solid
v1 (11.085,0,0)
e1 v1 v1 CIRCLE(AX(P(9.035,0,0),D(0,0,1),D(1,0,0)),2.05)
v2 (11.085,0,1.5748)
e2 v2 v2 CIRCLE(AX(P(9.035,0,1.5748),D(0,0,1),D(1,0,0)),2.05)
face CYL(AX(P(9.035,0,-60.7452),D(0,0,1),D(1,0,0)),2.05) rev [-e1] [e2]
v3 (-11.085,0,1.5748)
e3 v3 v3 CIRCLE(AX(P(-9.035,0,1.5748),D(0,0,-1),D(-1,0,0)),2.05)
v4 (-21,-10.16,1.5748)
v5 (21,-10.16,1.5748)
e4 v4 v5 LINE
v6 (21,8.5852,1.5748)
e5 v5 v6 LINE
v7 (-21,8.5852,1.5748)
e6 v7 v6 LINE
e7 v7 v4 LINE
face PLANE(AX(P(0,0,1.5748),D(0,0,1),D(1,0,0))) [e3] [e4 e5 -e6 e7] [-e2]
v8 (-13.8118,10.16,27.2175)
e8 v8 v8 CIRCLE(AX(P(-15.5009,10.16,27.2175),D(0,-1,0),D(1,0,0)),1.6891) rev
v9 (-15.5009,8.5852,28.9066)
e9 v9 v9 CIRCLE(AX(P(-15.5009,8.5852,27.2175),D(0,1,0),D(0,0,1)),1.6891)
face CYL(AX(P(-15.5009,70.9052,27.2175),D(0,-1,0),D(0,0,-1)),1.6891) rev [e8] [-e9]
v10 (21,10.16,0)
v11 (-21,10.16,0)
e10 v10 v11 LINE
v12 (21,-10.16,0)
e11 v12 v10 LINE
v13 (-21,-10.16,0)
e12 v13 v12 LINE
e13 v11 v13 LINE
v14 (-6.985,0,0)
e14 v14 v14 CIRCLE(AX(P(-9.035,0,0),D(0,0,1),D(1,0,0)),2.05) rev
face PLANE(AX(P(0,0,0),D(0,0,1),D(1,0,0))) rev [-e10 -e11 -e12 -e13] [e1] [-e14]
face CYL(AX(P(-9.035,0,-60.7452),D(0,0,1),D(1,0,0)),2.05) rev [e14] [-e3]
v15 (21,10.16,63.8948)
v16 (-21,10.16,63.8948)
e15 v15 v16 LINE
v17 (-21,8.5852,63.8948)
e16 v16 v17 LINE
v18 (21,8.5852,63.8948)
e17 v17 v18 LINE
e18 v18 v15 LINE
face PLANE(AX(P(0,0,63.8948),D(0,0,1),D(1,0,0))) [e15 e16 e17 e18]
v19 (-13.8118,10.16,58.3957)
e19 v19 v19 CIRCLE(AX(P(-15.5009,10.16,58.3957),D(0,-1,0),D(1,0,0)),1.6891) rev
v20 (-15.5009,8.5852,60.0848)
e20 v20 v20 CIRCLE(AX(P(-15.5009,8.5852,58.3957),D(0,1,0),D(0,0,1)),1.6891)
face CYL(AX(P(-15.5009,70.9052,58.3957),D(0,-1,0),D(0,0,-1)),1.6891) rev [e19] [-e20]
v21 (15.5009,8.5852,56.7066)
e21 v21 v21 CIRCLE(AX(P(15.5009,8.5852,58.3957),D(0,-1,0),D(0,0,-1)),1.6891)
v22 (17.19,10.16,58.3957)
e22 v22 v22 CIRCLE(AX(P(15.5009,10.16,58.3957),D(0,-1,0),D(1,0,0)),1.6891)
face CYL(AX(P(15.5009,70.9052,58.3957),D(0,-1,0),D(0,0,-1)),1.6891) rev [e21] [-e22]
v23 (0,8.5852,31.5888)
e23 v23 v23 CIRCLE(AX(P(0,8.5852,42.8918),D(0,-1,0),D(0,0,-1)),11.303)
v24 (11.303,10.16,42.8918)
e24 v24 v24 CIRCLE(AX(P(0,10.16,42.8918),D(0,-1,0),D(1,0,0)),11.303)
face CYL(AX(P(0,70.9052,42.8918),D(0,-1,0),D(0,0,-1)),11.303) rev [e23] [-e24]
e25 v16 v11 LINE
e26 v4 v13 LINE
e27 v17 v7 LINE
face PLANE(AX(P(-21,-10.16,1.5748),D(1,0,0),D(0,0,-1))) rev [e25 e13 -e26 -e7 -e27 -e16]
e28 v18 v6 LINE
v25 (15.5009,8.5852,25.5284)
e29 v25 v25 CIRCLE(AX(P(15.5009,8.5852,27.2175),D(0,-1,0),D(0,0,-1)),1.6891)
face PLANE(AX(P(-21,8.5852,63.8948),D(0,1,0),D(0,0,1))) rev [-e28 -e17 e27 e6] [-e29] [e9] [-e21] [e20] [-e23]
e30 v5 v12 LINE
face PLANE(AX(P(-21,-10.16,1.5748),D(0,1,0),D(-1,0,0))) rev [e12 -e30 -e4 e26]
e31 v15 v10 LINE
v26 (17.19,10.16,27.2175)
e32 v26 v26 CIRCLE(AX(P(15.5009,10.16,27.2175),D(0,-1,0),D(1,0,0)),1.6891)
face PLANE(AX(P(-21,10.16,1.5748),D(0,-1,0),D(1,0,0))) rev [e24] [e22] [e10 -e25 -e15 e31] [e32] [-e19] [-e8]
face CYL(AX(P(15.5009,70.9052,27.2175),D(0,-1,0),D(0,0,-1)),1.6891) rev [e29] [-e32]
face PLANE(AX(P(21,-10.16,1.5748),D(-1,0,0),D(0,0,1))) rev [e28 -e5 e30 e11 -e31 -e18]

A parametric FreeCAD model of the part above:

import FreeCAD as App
import Part
import Sketcher
Q = App.Units.Quantity

doc = App.newDocument("Part")
body = doc.addObject("PartDesign::Body", "Body")

# Sketch on XY plane
sketch1 = body.newObject("Sketcher::SketchObject", "Sketch")
sketch1.AttachmentSupport = (doc.getObject("XY_Plane"), [""])
sketch1.MapMode = "FlatFace"
sketch1.addGeometry([
    Part.LineSegment(App.Vector(-21, -10.16, 0), App.Vector(21, -10.16, 0)),
    Part.LineSegment(App.Vector(21, -10.16, 0), App.Vector(21, 10.16, 0)),
    Part.LineSegment(App.Vector(21, 10.16, 0), App.Vector(-21, 10.16, 0)),
    Part.LineSegment(App.Vector(-21, 10.16, 0), App.Vector(-21, -10.16, 0)),
], False)
sketch1.addConstraint([
    Sketcher.Constraint("Coincident", 0, 2, 1, 1),
    Sketcher.Constraint("Coincident", 1, 2, 2, 1),
    Sketcher.Constraint("Coincident", 2, 2, 3, 1),
    Sketcher.Constraint("Coincident", 3, 2, 0, 1),
    Sketcher.Constraint("Horizontal", 0),
    Sketcher.Constraint("Vertical", 1),
    Sketcher.Constraint("Horizontal", 2),
    Sketcher.Constraint("Vertical", 3),
    Sketcher.Constraint("Symmetric", 0, 2, 2, 2, -1, 1),
    Sketcher.Constraint("DistanceY", 1, 1, 1, 2, Q("0.8 in")),
    Sketcher.Constraint("DistanceX", 0, 1, 0, 2, Q("42 mm")),
])
pad1 = body.newObject("PartDesign::Pad", "Pad")
pad1.Profile = sketch1
pad1.Length = Q("0.062 in")

# Sketch on XY plane
sketch2 = body.newObject("Sketcher::SketchObject", "Sketch001")
sketch2.AttachmentSupport = (doc.getObject("XY_Plane"), [""])
sketch2.MapMode = "FlatFace"
sketch2.AttachmentOffset = App.Placement(App.Vector(0, 0, 0.062 * 25.4), App.Rotation())
sketch2.addGeometry([
    Part.LineSegment(App.Vector(-21, 10.16, 0), App.Vector(-21, 8.5852, 0)),
    Part.LineSegment(App.Vector(-21, 8.5852, 0), App.Vector(21, 8.5852, 0)),
    Part.LineSegment(App.Vector(21, 8.5852, 0), App.Vector(21, 10.16, 0)),
    Part.LineSegment(App.Vector(21, 10.16, 0), App.Vector(-21, 10.16, 0)),
], False)
sketch2.addConstraint([
    Sketcher.Constraint("Coincident", 0, 2, 1, 1),
    Sketcher.Constraint("Coincident", 1, 2, 2, 1),
    Sketcher.Constraint("Coincident", 2, 2, 3, 1),
    Sketcher.Constraint("Coincident", 3, 2, 0, 1),
    Sketcher.Constraint("Vertical", 0),
    Sketcher.Constraint("Horizontal", 1),
    Sketcher.Constraint("Vertical", 2),
    Sketcher.Constraint("Horizontal", 3),
    Sketcher.Constraint("DistanceY", -1, 1, 2, 2, Q("0.4 in")),
    Sketcher.Constraint("DistanceY", 0, 2, 0, 1, Q("0.062 in")),
    Sketcher.Constraint("DistanceX", 1, 1, 1, 2, Q("42 mm")),
    Sketcher.Constraint("DistanceX", 0, 2, -1, 1, Q("21 mm")),
])
pad2 = body.newObject("PartDesign::Pad", "Pad001")
pad2.Profile = sketch2
pad2.Length = 62.32

# Sketch on XZ plane
sketch3 = body.newObject("Sketcher::SketchObject", "Sketch002")
sketch3.AttachmentSupport = (doc.getObject("XZ_Plane"), [""])
sketch3.MapMode = "FlatFace"
sketch3.AttachmentOffset = App.Placement(App.Vector(0, 0, -0.338 * 25.4), App.Rotation())
sketch3.addGeometry([
    Part.Circle(App.Vector(0, 42.8918, 0), App.Vector(0, 0, 1), 11.303),  # 0
    Part.Circle(App.Vector(15.5009, 58.3957, 0), App.Vector(0, 0, 1), 1.6891),  # 1
    Part.Circle(App.Vector(15.5009, 27.2175, 0), App.Vector(0, 0, 1), 1.6891),  # 2
    Part.Circle(App.Vector(-15.5009, 27.2175, 0), App.Vector(0, 0, 1), 1.6891),  # 3
    Part.Circle(App.Vector(-15.5009, 58.3957, 0), App.Vector(0, 0, 1), 1.6891),  # 4
], False)
sketch3.addConstraint([
    Sketcher.Constraint("Equal", 1, 2),
    Sketcher.Constraint("Equal", 2, 3),
    Sketcher.Constraint("Equal", 3, 4),
    Sketcher.Constraint("Symmetric", 2, 3, 3, 3, -2),
    Sketcher.Constraint("Symmetric", 1, 3, 4, 3, -2),
    Sketcher.Constraint("PointOnObject", 0, 3, -2),
    Sketcher.Constraint("Vertical", 1, 3, 2, 3),
    Sketcher.Constraint("Diameter", 0, Q("0.89 in")),
    Sketcher.Constraint("Diameter", 1, Q("0.133 in")),
    Sketcher.Constraint("DistanceY", -1, 1, 0, 3, Q("42.8918 mm")),
    Sketcher.Constraint("DistanceX", -1, 1, 1, 3, Q("15.5009 mm")),
    Sketcher.Constraint("DistanceY", -1, 1, 1, 3, Q("58.3957 mm")),
    Sketcher.Constraint("DistanceY", -1, 1, 2, 3, Q("27.2175 mm")),
])
pocket1 = body.newObject("PartDesign::Pocket", "Pocket")
pocket1.Profile = sketch3
pocket1.Length = 62.32

# Sketch on XY plane
sketch4 = body.newObject("Sketcher::SketchObject", "Sketch003")
sketch4.AttachmentSupport = (doc.getObject("XY_Plane"), [""])
sketch4.MapMode = "FlatFace"
sketch4.AttachmentOffset = App.Placement(App.Vector(0, 0, 0.062 * 25.4), App.Rotation())
sketch4.addGeometry([
    Part.Circle(App.Vector(9.035, 0, 0), App.Vector(0, 0, 1), 2.05),
    Part.Circle(App.Vector(-9.035, 0, 0), App.Vector(0, 0, 1), 2.05),
], False)
sketch4.addConstraint([
    Sketcher.Constraint("Equal", 0, 1),
    Sketcher.Constraint("Symmetric", 0, 3, 1, 3, -1, 1),
    Sketcher.Constraint("PointOnObject", 0, 3, -1),
    Sketcher.Constraint("Diameter", 0, Q("4.1 mm")),
    Sketcher.Constraint("DistanceX", -1, 1, 0, 3, Q("9.035 mm")),
])
pocket2 = body.newObject("PartDesign::Pocket", "Pocket001")
pocket2.Profile = sketch4
pocket2.Length = 62.32

doc.recompute()
